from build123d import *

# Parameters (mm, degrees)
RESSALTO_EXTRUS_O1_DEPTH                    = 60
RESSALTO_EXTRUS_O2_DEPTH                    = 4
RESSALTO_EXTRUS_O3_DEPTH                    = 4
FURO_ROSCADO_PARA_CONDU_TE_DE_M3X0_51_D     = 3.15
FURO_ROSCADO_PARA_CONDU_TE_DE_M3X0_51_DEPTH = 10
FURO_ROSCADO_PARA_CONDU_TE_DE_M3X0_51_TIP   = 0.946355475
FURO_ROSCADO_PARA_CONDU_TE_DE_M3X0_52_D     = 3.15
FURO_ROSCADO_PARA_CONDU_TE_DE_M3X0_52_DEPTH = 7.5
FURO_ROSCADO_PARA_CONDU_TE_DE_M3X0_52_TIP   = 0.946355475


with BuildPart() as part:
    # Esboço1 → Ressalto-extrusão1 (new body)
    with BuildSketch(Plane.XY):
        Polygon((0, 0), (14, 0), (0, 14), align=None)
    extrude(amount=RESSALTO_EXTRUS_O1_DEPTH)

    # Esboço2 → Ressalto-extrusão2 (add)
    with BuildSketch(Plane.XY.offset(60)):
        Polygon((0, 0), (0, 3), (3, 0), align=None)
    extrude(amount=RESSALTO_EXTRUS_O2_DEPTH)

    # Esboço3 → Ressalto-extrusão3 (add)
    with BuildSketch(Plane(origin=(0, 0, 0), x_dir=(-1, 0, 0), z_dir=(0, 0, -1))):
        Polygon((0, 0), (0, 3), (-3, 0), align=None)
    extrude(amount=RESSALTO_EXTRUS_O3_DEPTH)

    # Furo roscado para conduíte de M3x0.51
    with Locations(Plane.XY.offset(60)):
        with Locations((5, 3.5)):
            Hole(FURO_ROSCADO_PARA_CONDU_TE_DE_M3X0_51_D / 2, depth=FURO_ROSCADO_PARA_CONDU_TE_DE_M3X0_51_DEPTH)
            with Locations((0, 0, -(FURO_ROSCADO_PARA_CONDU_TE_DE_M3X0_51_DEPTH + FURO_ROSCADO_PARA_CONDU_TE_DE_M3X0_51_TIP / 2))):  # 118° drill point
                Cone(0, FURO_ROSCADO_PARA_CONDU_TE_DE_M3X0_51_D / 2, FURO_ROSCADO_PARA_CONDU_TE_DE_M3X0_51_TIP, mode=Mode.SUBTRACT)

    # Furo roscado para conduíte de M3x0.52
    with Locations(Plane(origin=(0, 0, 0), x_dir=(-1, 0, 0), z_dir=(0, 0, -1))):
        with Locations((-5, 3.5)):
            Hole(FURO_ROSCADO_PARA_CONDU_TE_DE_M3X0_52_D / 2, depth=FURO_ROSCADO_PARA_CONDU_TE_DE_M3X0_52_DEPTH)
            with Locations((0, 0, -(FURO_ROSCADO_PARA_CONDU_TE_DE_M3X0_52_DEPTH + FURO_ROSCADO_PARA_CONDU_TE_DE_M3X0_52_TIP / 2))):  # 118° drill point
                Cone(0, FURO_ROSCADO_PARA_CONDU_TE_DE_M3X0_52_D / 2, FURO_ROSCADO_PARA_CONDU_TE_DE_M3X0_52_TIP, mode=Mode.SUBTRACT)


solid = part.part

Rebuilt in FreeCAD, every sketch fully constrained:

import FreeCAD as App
import Part
import Sketcher
Q = App.Units.Quantity

doc = App.newDocument("Part")
params = doc.addObject("Spreadsheet::Sheet", "Params")
for row, (alias, value) in enumerate([
    ("sketch1_width", "14 mm"),
    ("pad1_length", "60 mm"),
    ("sketch2_width", "3 mm"),
    ("pad2_length", "4 mm"),
    ("sketch3_width", "3 mm"),
    ("pad3_length", "4 mm"),
    ("sketch4_diameter", "3.15 mm"),
    ("hole_diameter", "3.15 mm"),
    ("hole_depth", "10 mm"),
    ("sketch5_diameter", "3.15 mm"),
    ("hole2_diameter", "3.15 mm"),
    ("hole2_depth", "7.5 mm"),
], start=1):
    params.set(f"A{row}", alias)
    params.set(f"B{row}", "=" + value)
    params.setAlias(f"B{row}", alias)

body = doc.addObject("PartDesign::Body", "Body")

# Sketch on XY plane
sketch1 = doc.addObject("Sketcher::SketchObject", "Sketch")
body.addObject(sketch1)
sketch1.AttachmentSupport = (doc.XY_Plane, [""])
sketch1.MapMode = "FlatFace"
sketch1.addGeometry([
    Part.LineSegment(App.Vector(0, 0, 0), App.Vector(14, 0, 0)),
    Part.LineSegment(App.Vector(14, 0, 0), App.Vector(0, 14, 0)),
    Part.LineSegment(App.Vector(0, 14, 0), App.Vector(0, 0, 0)),
], False)
sketch1.addConstraint([
    Sketcher.Constraint("Coincident", 0, 2, 1, 1),
    Sketcher.Constraint("Coincident", 1, 2, 2, 1),
    Sketcher.Constraint("Coincident", 2, 2, 0, 1),
    Sketcher.Constraint("Horizontal", 0),
    Sketcher.Constraint("Vertical", 2),
    Sketcher.Constraint("Coincident", 2, 2, -1, 1),
    Sketcher.Constraint("Equal", 0, 2),
    Sketcher.Constraint("DistanceX", 0, 1, 0, 2, Q("14 mm")),
])
sketch1.setExpression("Constraints[7]", "Params.sketch1_width")
pad1 = doc.addObject("PartDesign::Pad", "Pad")
body.addObject(pad1)
pad1.Profile = sketch1
pad1.setExpression("Length", "Params.pad1_length")

# Sketch on XY plane
sketch2 = doc.addObject("Sketcher::SketchObject", "Sketch001")
body.addObject(sketch2)
sketch2.AttachmentSupport = (doc.XY_Plane, [""])
sketch2.MapMode = "FlatFace"
sketch2.AttachmentOffset = App.Placement(App.Vector(0, 0, 60), App.Rotation())
sketch2.addGeometry([
    Part.LineSegment(App.Vector(0, 3, 0), App.Vector(0, 0, 0)),
    Part.LineSegment(App.Vector(0, 0, 0), App.Vector(3, 0, 0)),
    Part.LineSegment(App.Vector(3, 0, 0), App.Vector(0, 3, 0)),
], False)
sketch2.addConstraint([
    Sketcher.Constraint("Coincident", 0, 2, 1, 1),
    Sketcher.Constraint("Coincident", 1, 2, 2, 1),
    Sketcher.Constraint("Coincident", 2, 2, 0, 1),
    Sketcher.Constraint("Vertical", 0),
    Sketcher.Constraint("Horizontal", 1),
    Sketcher.Constraint("Coincident", 0, 2, -1, 1),
    Sketcher.Constraint("Equal", 1, 0),
    Sketcher.Constraint("DistanceX", 1, 1, 1, 2, Q("3 mm")),
])
sketch2.setExpression("Constraints[7]", "Params.sketch2_width")
pad2 = doc.addObject("PartDesign::Pad", "Pad001")
body.addObject(pad2)
pad2.Profile = sketch2
pad2.setExpression("Length", "Params.pad2_length")

# Sketch on XY plane
sketch3 = doc.addObject("Sketcher::SketchObject", "Sketch002")
body.addObject(sketch3)
sketch3.AttachmentSupport = (doc.XY_Plane, [""])
sketch3.MapMode = "FlatFace"
sketch3.addGeometry([
    Part.LineSegment(App.Vector(0, 0, 0), App.Vector(0, 3, 0)),
    Part.LineSegment(App.Vector(0, 3, 0), App.Vector(3, 0, 0)),
    Part.LineSegment(App.Vector(3, 0, 0), App.Vector(0, 0, 0)),
], False)
sketch3.addConstraint([
    Sketcher.Constraint("Coincident", 0, 2, 1, 1),
    Sketcher.Constraint("Coincident", 1, 2, 2, 1),
    Sketcher.Constraint("Coincident", 2, 2, 0, 1),
    Sketcher.Constraint("Vertical", 0),
    Sketcher.Constraint("Horizontal", 2),
    Sketcher.Constraint("Coincident", 2, 2, -1, 1),
    Sketcher.Constraint("Equal", 2, 0),
    Sketcher.Constraint("DistanceX", 2, 2, 2, 1, Q("3 mm")),
])
sketch3.setExpression("Constraints[7]", "Params.sketch3_width")
pad3 = doc.addObject("PartDesign::Pad", "Pad002")
body.addObject(pad3)
pad3.Profile = sketch3
pad3.setExpression("Length", "Params.pad3_length")
pad3.Reversed = True

# Sketch on XY plane
sketch4 = doc.addObject("Sketcher::SketchObject", "Sketch003")
body.addObject(sketch4)
sketch4.AttachmentSupport = (doc.XY_Plane, [""])
sketch4.MapMode = "FlatFace"
sketch4.AttachmentOffset = App.Placement(App.Vector(0, 0, 60), App.Rotation())
sketch4.addGeometry(Part.Circle(App.Vector(5, 3.5, 0), App.Vector(0, 0, 1), 1.575), False)
sketch4.addConstraint([
    Sketcher.Constraint("Diameter", 0, Q("3.15 mm")),
    Sketcher.Constraint("DistanceX", -1, 1, 0, 3, Q("5 mm")),
    Sketcher.Constraint("DistanceY", -1, 1, 0, 3, Q("3.5 mm")),
])
sketch4.setExpression("Constraints[0]", "Params.sketch4_diameter")
doc.recompute()
hole = doc.addObject("PartDesign::Hole", "Hole")
body.addObject(hole)
hole.Profile = sketch4
hole.ThreadType = "None"
hole.setExpression("Diameter", "Params.hole_diameter")
hole.DepthType = "Dimension"
hole.setExpression("Depth", "Params.hole_depth")
hole.DrillPoint = "Angled"
hole.DrillPointAngle = 118

# Sketch on XY plane
sketch5 = doc.addObject("Sketcher::SketchObject", "Sketch004")
body.addObject(sketch5)
sketch5.AttachmentSupport = (doc.XY_Plane, [""])
sketch5.MapMode = "FlatFace"
sketch5.addGeometry(Part.Circle(App.Vector(5, 3.5, 0), App.Vector(0, 0, 1), 1.575), False)
sketch5.addConstraint([
    Sketcher.Constraint("Diameter", 0, Q("3.15 mm")),
    Sketcher.Constraint("DistanceX", -1, 1, 0, 3, Q("5 mm")),
    Sketcher.Constraint("DistanceY", -1, 1, 0, 3, Q("3.5 mm")),
])
sketch5.setExpression("Constraints[0]", "Params.sketch5_diameter")
doc.recompute()
hole2 = doc.addObject("PartDesign::Hole", "Hole001")
body.addObject(hole2)
hole2.Profile = sketch5
hole2.ThreadType = "None"
hole2.setExpression("Diameter", "Params.hole2_diameter")
hole2.DepthType = "Dimension"
hole2.setExpression("Depth", "Params.hole2_depth")
hole2.DrillPoint = "Angled"
hole2.DrillPointAngle = 118
hole2.Reversed = True

doc.recompute()
